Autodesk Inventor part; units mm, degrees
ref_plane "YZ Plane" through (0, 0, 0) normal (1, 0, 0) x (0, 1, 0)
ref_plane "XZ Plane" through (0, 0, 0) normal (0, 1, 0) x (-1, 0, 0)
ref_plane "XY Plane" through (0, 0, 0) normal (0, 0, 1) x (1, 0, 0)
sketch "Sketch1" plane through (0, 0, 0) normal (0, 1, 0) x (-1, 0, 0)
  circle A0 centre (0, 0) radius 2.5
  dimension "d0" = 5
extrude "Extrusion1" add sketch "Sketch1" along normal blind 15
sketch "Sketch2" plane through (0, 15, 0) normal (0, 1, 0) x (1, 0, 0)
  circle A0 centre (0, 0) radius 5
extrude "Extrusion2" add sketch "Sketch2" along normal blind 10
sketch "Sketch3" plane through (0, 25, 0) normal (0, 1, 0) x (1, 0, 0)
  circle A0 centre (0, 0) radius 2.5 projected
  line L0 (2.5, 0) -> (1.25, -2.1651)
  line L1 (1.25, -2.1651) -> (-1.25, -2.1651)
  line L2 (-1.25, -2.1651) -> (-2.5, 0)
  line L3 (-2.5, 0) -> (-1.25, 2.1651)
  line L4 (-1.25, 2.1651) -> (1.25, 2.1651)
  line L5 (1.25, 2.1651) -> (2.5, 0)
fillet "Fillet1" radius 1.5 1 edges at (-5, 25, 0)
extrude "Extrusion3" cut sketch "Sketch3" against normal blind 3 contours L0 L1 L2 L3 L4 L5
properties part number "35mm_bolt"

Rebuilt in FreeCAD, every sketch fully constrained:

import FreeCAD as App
import Part
import Sketcher

V = App.Vector
Q = App.Units.Quantity


def edges_at(feature, points):
    """Names of the edges that pass closest to the given points."""
    edges = feature.Shape.Edges
    near = lambda p: min(range(len(edges)), key=lambda i: edges[i].distToShape(Part.Vertex(*p))[0])
    return sorted({f"Edge{near(p) + 1}" for p in points})


def add_polygon(sketch, points):
    """Adds a closed chain of lines whose ends are joined by coincident constraints."""
    first, n = sketch.GeometryCount, len(points)
    for a, b in zip(points, points[1:] + points[:1]):
        sketch.addGeometry(Part.LineSegment(App.Vector(*a, 0), App.Vector(*b, 0)), False)
    for i in range(n):
        sketch.addConstraint(Sketcher.Constraint("Coincident", first + i, 2, first + (i + 1) % n, 1))

doc = App.newDocument("Part")
body = doc.addObject("PartDesign::Body", "Body")

# Sketch on XZ plane
sketch1 = doc.addObject("Sketcher::SketchObject", "Sketch")
body.addObject(sketch1)
sketch1.AttachmentSupport = (doc.XZ_Plane, [""])
sketch1.MapMode = "FlatFace"
sketch1.addGeometry(Part.Circle(V(0, 0, 0), V(0, 0, 1), 2.5), False)
sketch1.addConstraint([
    Sketcher.Constraint("Coincident", 0, 3, -1, 1),
    Sketcher.Constraint("Diameter", 0, Q("5 mm")),
])
pad1 = doc.addObject("PartDesign::Pad", "Pad")
body.addObject(pad1)
pad1.Profile = sketch1
pad1.Length = 15
pad1.Reversed = True

# Sketch on XZ plane
sketch2 = doc.addObject("Sketcher::SketchObject", "Sketch001")
body.addObject(sketch2)
sketch2.AttachmentSupport = (doc.XZ_Plane, [""])
sketch2.MapMode = "FlatFace"
sketch2.AttachmentOffset = App.Placement(V(0, 0, -15), App.Rotation())
sketch2.addGeometry(Part.Circle(V(0, 0, 0), V(0, 0, 1), 5), False)
sketch2.addConstraint([
    Sketcher.Constraint("Coincident", 0, 3, -1, 1),
    Sketcher.Constraint("Diameter", 0, Q("10 mm")),
])
pad2 = doc.addObject("PartDesign::Pad", "Pad001")
body.addObject(pad2)
pad2.Profile = sketch2
pad2.Length = 10
pad2.Reversed = True
doc.recompute()

fillet = doc.addObject("PartDesign::Fillet", "Fillet")
body.addObject(fillet)
fillet.Base = (pad2, edges_at(pad2, [(-5, 25, 0)]))
fillet.Radius = 1.5

# Sketch on XZ plane
sketch3 = doc.addObject("Sketcher::SketchObject", "Sketch002")
body.addObject(sketch3)
sketch3.AttachmentSupport = (doc.XZ_Plane, [""])
sketch3.MapMode = "FlatFace"
sketch3.AttachmentOffset = App.Placement(V(0, 0, -25), App.Rotation())
add_polygon(sketch3, [(1.2, 2.2), (2.5, 0), (1.2, -2.2), (-1.2, -2.2), (-2.5, 0), (-1.2, 2.2)])  # lines 0-5
sketch3.addConstraint([
    Sketcher.Constraint("Horizontal", 2),
    Sketcher.Constraint("Horizontal", 5),
    Sketcher.Constraint("Symmetric", 0, 2, 3, 2, -1, 1),
    Sketcher.Constraint("Symmetric", 1, 2, 4, 2, -1, 1),
    Sketcher.Constraint("PointOnObject", 0, 2, -1),
    Sketcher.Constraint("Parallel", 0, 3),
    Sketcher.Constraint("Vertical", 2, 2, 4, 2),
    Sketcher.Constraint("Angle", 0, Q("-60.0004 deg")),
    Sketcher.Constraint("DistanceX", 2, 2, 2, 1, Q("2.5 mm")),
    Sketcher.Constraint("DistanceX", 3, 2, 0, 2, Q("5 mm")),
])
pocket1 = doc.addObject("PartDesign::Pocket", "Pocket")
body.addObject(pocket1)
pocket1.Profile = sketch3
pocket1.Length = 3
pocket1.Reversed = True

doc.recompute()
